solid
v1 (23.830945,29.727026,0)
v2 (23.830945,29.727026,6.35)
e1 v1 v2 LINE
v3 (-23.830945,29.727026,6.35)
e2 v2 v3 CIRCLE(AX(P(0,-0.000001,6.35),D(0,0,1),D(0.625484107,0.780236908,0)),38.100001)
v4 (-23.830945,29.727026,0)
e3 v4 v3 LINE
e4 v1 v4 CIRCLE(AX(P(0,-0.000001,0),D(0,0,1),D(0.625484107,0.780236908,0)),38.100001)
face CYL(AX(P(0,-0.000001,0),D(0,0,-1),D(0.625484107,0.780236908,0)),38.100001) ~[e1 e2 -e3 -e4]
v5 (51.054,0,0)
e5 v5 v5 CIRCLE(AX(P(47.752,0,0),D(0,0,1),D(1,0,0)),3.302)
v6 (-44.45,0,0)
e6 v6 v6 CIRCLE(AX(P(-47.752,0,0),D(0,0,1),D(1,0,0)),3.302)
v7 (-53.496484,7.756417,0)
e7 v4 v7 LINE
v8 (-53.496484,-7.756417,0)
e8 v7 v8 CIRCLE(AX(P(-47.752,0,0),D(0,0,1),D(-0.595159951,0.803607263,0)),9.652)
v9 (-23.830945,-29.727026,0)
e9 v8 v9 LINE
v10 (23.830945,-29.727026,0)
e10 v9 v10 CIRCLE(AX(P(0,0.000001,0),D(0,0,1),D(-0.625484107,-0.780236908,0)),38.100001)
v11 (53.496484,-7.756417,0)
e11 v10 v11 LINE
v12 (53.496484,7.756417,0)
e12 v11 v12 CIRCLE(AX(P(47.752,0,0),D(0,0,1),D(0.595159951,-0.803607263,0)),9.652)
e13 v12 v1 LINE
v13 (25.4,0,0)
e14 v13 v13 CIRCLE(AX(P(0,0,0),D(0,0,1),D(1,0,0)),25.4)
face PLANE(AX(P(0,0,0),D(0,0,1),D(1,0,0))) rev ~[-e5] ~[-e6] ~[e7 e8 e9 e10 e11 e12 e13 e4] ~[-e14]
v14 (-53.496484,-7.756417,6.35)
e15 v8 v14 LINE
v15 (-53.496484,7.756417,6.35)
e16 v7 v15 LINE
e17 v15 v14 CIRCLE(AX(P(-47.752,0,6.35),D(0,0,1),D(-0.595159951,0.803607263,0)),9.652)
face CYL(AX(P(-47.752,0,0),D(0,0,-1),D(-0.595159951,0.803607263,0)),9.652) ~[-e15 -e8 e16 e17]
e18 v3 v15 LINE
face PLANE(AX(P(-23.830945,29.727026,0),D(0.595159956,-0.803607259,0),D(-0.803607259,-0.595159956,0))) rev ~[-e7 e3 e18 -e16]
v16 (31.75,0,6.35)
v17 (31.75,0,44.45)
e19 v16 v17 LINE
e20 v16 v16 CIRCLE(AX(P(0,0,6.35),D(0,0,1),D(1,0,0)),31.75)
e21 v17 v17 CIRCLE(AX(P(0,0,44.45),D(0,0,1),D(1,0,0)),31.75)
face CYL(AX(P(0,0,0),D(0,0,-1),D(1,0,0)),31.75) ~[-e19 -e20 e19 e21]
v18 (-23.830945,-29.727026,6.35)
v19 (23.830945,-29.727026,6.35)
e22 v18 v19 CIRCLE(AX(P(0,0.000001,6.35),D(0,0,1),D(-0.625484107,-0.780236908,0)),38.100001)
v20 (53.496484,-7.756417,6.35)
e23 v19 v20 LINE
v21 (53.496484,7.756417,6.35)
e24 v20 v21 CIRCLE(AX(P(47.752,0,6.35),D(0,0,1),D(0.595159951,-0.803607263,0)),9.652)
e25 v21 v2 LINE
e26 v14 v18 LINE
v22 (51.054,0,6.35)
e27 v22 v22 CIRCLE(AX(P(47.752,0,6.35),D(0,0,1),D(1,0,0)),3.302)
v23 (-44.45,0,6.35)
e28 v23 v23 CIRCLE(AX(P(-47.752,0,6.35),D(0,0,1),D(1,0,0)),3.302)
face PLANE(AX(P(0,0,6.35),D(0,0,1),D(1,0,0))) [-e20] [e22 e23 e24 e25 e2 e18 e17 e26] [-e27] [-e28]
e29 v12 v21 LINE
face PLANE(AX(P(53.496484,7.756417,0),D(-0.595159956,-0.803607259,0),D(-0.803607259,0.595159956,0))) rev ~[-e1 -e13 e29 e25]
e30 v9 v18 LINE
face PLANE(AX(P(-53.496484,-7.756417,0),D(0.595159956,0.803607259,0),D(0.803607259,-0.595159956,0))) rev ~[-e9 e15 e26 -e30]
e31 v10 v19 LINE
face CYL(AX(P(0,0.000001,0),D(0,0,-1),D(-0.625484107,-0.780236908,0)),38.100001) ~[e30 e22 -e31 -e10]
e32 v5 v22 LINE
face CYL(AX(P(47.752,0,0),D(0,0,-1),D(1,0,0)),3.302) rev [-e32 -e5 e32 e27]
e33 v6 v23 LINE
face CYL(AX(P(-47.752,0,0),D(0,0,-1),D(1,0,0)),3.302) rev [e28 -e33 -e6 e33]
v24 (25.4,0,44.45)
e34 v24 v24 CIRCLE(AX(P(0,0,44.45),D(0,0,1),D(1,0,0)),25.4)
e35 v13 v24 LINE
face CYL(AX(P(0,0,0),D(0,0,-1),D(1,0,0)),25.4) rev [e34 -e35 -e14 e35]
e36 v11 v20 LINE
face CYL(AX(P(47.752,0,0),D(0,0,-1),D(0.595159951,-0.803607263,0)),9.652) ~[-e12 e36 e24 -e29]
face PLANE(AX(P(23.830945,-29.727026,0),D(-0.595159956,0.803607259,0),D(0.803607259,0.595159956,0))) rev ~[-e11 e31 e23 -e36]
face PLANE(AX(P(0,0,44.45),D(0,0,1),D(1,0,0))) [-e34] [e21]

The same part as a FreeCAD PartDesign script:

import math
import FreeCAD as App
import Part
import Sketcher
Q = App.Units.Quantity

doc = App.newDocument("Part")
params = doc.addObject("Spreadsheet::Sheet", "Params")
for row, (alias, value) in enumerate([
    ("sketch1_diameter", "2.5 in"),
    ("sketch1_radius", "1.5 in"),
    ("sketch1_diameter2", "0.26 in"),
    ("sketch1_radius2", "0.38 in"),
    ("pad1_length", "0.25 in"),
    ("sketch2_diameter", "2 in"),
    ("sketch2_diameter2", "2.5 in"),
    ("pad2_length", "1.75 in"),
], start=1):
    params.set(f"A{row}", alias)
    params.set(f"B{row}", "=" + value)
    params.setAlias(f"B{row}", alias)

body = doc.addObject("PartDesign::Body", "Body")

# Sketch on XY plane
sketch1 = body.newObject("Sketcher::SketchObject", "Sketch")
sketch1.AttachmentSupport = (doc.getObject("XY_Plane"), [""])
sketch1.MapMode = "FlatFace"
sketch1.addGeometry(Part.LineSegment(App.Vector(-53.5, -7.8, 0), App.Vector(-23.8, -29.7, 0)), False)
sketch1.addGeometry(Part.ArcOfCircle(Part.Circle(App.Vector(0, 0, 0), App.Vector(0, 0, 1), 38.1), math.radians(-129), math.radians(-51)), False)
sketch1.addGeometry(Part.LineSegment(App.Vector(23.8, -29.7, 0), App.Vector(53.5, -7.8, 0)), False)
sketch1.addGeometry(Part.ArcOfCircle(Part.Circle(App.Vector(47.8, 0, 0), App.Vector(0, 0, 1), 9.7), math.radians(-53), math.radians(53)), False)
sketch1.addGeometry(Part.LineSegment(App.Vector(53.5, 7.8, 0), App.Vector(23.8, 29.7, 0)), False)
sketch1.addGeometry(Part.ArcOfCircle(Part.Circle(App.Vector(0, 0, 0), App.Vector(0, 0, 1), 38.1), math.radians(51), math.radians(129)), False)
sketch1.addGeometry(Part.LineSegment(App.Vector(-23.8, 29.7, 0), App.Vector(-53.5, 7.8, 0)), False)
sketch1.addGeometry(Part.ArcOfCircle(Part.Circle(App.Vector(-47.8, 0, 0), App.Vector(0, 0, 1), 9.7), math.radians(127), math.radians(233)), False)
sketch1.addGeometry(Part.Circle(App.Vector(-47.8, 0, 0), App.Vector(0, 0, 1), 3.3), False)
sketch1.addGeometry(Part.Circle(App.Vector(0, 0, 0), App.Vector(0, 0, 1), 31.8), False)
sketch1.addGeometry(Part.Circle(App.Vector(47.8, 0, 0), App.Vector(0, 0, 1), 3.3), False)
sketch1.addConstraint(Sketcher.Constraint("Coincident", 0, 2, 1, 1))
sketch1.addConstraint(Sketcher.Constraint("Coincident", 1, 2, 2, 1))
sketch1.addConstraint(Sketcher.Constraint("Tangent", 2, 2, 3, 1))
sketch1.addConstraint(Sketcher.Constraint("Tangent", 3, 2, 4, 1))
sketch1.addConstraint(Sketcher.Constraint("Coincident", 4, 2, 5, 1))
sketch1.addConstraint(Sketcher.Constraint("Coincident", 5, 2, 6, 1))
sketch1.addConstraint(Sketcher.Constraint("Tangent", 6, 2, 7, 1))
sketch1.addConstraint(Sketcher.Constraint("Tangent", 7, 2, 0, 1))
sketch1.addConstraint(Sketcher.Constraint("Coincident", 1, 3, -1, 1))
sketch1.addConstraint(Sketcher.Constraint("Coincident", 5, 3, -1, 1))
sketch1.addConstraint(Sketcher.Constraint("Coincident", 9, 3, -1, 1))
sketch1.addConstraint(Sketcher.Constraint("Coincident", 8, 3, 7, 3))
sketch1.addConstraint(Sketcher.Constraint("Coincident", 10, 3, 3, 3))
sketch1.addConstraint(Sketcher.Constraint("Equal", 1, 5))
sketch1.addConstraint(Sketcher.Constraint("Equal", 3, 7))
sketch1.addConstraint(Sketcher.Constraint("Equal", 8, 10))
sketch1.addConstraint(Sketcher.Constraint("Symmetric", 3, 3, 7, 3, -1, 1))
sketch1.addConstraint(Sketcher.Constraint("Symmetric", 3, 2, 6, 2, -2))
sketch1.addConstraint(Sketcher.Constraint("Parallel", 0, 4))
sketch1.addConstraint(Sketcher.Constraint("Parallel", 2, 6))
sketch1.addConstraint(Sketcher.Constraint("Diameter", 9, Q("2.5 in")))
sketch1.addConstraint(Sketcher.Constraint("Radius", 1, Q("1.5 in")))
sketch1.addConstraint(Sketcher.Constraint("Diameter", 8, Q("0.26 in")))
sketch1.addConstraint(Sketcher.Constraint("Radius", 3, Q("0.38 in")))
sketch1.addConstraint(Sketcher.Constraint("DistanceX", -1, 1, 3, 3, Q("1.88 in")))
sketch1.addConstraint(Sketcher.Constraint("Distance", 0, 36.915469))
sketch1.setExpression("Constraints[20]", "Params.sketch1_diameter")
sketch1.setExpression("Constraints[21]", "Params.sketch1_radius")
sketch1.setExpression("Constraints[22]", "Params.sketch1_diameter2")
sketch1.setExpression("Constraints[23]", "Params.sketch1_radius2")
pad1 = body.newObject("PartDesign::Pad", "Pad")
pad1.Profile = sketch1
pad1.setExpression("Length", "Params.pad1_length")

# Sketch on XY plane
sketch2 = body.newObject("Sketcher::SketchObject", "Sketch001")
sketch2.AttachmentSupport = (doc.getObject("XY_Plane"), [""])
sketch2.MapMode = "FlatFace"
sketch2.addGeometry(Part.Circle(App.Vector(0, 0, 0), App.Vector(0, 0, 1), 32), False)
sketch2.addGeometry(Part.Circle(App.Vector(0, 0, 0), App.Vector(0, 0, 1), 25), False)
sketch2.addConstraint(Sketcher.Constraint("Coincident", 0, 3, -1, 1))
sketch2.addConstraint(Sketcher.Constraint("Coincident", 1, 3, -1, 1))
sketch2.addConstraint(Sketcher.Constraint("Diameter", 1, Q("2 in")))
sketch2.addConstraint(Sketcher.Constraint("Diameter", 0, Q("2.5 in")))
sketch2.setExpression("Constraints[2]", "Params.sketch2_diameter")
sketch2.setExpression("Constraints[3]", "Params.sketch2_diameter2")
pad2 = body.newObject("PartDesign::Pad", "Pad001")
pad2.Profile = sketch2
pad2.setExpression("Length", "Params.pad2_length")

doc.recompute()
